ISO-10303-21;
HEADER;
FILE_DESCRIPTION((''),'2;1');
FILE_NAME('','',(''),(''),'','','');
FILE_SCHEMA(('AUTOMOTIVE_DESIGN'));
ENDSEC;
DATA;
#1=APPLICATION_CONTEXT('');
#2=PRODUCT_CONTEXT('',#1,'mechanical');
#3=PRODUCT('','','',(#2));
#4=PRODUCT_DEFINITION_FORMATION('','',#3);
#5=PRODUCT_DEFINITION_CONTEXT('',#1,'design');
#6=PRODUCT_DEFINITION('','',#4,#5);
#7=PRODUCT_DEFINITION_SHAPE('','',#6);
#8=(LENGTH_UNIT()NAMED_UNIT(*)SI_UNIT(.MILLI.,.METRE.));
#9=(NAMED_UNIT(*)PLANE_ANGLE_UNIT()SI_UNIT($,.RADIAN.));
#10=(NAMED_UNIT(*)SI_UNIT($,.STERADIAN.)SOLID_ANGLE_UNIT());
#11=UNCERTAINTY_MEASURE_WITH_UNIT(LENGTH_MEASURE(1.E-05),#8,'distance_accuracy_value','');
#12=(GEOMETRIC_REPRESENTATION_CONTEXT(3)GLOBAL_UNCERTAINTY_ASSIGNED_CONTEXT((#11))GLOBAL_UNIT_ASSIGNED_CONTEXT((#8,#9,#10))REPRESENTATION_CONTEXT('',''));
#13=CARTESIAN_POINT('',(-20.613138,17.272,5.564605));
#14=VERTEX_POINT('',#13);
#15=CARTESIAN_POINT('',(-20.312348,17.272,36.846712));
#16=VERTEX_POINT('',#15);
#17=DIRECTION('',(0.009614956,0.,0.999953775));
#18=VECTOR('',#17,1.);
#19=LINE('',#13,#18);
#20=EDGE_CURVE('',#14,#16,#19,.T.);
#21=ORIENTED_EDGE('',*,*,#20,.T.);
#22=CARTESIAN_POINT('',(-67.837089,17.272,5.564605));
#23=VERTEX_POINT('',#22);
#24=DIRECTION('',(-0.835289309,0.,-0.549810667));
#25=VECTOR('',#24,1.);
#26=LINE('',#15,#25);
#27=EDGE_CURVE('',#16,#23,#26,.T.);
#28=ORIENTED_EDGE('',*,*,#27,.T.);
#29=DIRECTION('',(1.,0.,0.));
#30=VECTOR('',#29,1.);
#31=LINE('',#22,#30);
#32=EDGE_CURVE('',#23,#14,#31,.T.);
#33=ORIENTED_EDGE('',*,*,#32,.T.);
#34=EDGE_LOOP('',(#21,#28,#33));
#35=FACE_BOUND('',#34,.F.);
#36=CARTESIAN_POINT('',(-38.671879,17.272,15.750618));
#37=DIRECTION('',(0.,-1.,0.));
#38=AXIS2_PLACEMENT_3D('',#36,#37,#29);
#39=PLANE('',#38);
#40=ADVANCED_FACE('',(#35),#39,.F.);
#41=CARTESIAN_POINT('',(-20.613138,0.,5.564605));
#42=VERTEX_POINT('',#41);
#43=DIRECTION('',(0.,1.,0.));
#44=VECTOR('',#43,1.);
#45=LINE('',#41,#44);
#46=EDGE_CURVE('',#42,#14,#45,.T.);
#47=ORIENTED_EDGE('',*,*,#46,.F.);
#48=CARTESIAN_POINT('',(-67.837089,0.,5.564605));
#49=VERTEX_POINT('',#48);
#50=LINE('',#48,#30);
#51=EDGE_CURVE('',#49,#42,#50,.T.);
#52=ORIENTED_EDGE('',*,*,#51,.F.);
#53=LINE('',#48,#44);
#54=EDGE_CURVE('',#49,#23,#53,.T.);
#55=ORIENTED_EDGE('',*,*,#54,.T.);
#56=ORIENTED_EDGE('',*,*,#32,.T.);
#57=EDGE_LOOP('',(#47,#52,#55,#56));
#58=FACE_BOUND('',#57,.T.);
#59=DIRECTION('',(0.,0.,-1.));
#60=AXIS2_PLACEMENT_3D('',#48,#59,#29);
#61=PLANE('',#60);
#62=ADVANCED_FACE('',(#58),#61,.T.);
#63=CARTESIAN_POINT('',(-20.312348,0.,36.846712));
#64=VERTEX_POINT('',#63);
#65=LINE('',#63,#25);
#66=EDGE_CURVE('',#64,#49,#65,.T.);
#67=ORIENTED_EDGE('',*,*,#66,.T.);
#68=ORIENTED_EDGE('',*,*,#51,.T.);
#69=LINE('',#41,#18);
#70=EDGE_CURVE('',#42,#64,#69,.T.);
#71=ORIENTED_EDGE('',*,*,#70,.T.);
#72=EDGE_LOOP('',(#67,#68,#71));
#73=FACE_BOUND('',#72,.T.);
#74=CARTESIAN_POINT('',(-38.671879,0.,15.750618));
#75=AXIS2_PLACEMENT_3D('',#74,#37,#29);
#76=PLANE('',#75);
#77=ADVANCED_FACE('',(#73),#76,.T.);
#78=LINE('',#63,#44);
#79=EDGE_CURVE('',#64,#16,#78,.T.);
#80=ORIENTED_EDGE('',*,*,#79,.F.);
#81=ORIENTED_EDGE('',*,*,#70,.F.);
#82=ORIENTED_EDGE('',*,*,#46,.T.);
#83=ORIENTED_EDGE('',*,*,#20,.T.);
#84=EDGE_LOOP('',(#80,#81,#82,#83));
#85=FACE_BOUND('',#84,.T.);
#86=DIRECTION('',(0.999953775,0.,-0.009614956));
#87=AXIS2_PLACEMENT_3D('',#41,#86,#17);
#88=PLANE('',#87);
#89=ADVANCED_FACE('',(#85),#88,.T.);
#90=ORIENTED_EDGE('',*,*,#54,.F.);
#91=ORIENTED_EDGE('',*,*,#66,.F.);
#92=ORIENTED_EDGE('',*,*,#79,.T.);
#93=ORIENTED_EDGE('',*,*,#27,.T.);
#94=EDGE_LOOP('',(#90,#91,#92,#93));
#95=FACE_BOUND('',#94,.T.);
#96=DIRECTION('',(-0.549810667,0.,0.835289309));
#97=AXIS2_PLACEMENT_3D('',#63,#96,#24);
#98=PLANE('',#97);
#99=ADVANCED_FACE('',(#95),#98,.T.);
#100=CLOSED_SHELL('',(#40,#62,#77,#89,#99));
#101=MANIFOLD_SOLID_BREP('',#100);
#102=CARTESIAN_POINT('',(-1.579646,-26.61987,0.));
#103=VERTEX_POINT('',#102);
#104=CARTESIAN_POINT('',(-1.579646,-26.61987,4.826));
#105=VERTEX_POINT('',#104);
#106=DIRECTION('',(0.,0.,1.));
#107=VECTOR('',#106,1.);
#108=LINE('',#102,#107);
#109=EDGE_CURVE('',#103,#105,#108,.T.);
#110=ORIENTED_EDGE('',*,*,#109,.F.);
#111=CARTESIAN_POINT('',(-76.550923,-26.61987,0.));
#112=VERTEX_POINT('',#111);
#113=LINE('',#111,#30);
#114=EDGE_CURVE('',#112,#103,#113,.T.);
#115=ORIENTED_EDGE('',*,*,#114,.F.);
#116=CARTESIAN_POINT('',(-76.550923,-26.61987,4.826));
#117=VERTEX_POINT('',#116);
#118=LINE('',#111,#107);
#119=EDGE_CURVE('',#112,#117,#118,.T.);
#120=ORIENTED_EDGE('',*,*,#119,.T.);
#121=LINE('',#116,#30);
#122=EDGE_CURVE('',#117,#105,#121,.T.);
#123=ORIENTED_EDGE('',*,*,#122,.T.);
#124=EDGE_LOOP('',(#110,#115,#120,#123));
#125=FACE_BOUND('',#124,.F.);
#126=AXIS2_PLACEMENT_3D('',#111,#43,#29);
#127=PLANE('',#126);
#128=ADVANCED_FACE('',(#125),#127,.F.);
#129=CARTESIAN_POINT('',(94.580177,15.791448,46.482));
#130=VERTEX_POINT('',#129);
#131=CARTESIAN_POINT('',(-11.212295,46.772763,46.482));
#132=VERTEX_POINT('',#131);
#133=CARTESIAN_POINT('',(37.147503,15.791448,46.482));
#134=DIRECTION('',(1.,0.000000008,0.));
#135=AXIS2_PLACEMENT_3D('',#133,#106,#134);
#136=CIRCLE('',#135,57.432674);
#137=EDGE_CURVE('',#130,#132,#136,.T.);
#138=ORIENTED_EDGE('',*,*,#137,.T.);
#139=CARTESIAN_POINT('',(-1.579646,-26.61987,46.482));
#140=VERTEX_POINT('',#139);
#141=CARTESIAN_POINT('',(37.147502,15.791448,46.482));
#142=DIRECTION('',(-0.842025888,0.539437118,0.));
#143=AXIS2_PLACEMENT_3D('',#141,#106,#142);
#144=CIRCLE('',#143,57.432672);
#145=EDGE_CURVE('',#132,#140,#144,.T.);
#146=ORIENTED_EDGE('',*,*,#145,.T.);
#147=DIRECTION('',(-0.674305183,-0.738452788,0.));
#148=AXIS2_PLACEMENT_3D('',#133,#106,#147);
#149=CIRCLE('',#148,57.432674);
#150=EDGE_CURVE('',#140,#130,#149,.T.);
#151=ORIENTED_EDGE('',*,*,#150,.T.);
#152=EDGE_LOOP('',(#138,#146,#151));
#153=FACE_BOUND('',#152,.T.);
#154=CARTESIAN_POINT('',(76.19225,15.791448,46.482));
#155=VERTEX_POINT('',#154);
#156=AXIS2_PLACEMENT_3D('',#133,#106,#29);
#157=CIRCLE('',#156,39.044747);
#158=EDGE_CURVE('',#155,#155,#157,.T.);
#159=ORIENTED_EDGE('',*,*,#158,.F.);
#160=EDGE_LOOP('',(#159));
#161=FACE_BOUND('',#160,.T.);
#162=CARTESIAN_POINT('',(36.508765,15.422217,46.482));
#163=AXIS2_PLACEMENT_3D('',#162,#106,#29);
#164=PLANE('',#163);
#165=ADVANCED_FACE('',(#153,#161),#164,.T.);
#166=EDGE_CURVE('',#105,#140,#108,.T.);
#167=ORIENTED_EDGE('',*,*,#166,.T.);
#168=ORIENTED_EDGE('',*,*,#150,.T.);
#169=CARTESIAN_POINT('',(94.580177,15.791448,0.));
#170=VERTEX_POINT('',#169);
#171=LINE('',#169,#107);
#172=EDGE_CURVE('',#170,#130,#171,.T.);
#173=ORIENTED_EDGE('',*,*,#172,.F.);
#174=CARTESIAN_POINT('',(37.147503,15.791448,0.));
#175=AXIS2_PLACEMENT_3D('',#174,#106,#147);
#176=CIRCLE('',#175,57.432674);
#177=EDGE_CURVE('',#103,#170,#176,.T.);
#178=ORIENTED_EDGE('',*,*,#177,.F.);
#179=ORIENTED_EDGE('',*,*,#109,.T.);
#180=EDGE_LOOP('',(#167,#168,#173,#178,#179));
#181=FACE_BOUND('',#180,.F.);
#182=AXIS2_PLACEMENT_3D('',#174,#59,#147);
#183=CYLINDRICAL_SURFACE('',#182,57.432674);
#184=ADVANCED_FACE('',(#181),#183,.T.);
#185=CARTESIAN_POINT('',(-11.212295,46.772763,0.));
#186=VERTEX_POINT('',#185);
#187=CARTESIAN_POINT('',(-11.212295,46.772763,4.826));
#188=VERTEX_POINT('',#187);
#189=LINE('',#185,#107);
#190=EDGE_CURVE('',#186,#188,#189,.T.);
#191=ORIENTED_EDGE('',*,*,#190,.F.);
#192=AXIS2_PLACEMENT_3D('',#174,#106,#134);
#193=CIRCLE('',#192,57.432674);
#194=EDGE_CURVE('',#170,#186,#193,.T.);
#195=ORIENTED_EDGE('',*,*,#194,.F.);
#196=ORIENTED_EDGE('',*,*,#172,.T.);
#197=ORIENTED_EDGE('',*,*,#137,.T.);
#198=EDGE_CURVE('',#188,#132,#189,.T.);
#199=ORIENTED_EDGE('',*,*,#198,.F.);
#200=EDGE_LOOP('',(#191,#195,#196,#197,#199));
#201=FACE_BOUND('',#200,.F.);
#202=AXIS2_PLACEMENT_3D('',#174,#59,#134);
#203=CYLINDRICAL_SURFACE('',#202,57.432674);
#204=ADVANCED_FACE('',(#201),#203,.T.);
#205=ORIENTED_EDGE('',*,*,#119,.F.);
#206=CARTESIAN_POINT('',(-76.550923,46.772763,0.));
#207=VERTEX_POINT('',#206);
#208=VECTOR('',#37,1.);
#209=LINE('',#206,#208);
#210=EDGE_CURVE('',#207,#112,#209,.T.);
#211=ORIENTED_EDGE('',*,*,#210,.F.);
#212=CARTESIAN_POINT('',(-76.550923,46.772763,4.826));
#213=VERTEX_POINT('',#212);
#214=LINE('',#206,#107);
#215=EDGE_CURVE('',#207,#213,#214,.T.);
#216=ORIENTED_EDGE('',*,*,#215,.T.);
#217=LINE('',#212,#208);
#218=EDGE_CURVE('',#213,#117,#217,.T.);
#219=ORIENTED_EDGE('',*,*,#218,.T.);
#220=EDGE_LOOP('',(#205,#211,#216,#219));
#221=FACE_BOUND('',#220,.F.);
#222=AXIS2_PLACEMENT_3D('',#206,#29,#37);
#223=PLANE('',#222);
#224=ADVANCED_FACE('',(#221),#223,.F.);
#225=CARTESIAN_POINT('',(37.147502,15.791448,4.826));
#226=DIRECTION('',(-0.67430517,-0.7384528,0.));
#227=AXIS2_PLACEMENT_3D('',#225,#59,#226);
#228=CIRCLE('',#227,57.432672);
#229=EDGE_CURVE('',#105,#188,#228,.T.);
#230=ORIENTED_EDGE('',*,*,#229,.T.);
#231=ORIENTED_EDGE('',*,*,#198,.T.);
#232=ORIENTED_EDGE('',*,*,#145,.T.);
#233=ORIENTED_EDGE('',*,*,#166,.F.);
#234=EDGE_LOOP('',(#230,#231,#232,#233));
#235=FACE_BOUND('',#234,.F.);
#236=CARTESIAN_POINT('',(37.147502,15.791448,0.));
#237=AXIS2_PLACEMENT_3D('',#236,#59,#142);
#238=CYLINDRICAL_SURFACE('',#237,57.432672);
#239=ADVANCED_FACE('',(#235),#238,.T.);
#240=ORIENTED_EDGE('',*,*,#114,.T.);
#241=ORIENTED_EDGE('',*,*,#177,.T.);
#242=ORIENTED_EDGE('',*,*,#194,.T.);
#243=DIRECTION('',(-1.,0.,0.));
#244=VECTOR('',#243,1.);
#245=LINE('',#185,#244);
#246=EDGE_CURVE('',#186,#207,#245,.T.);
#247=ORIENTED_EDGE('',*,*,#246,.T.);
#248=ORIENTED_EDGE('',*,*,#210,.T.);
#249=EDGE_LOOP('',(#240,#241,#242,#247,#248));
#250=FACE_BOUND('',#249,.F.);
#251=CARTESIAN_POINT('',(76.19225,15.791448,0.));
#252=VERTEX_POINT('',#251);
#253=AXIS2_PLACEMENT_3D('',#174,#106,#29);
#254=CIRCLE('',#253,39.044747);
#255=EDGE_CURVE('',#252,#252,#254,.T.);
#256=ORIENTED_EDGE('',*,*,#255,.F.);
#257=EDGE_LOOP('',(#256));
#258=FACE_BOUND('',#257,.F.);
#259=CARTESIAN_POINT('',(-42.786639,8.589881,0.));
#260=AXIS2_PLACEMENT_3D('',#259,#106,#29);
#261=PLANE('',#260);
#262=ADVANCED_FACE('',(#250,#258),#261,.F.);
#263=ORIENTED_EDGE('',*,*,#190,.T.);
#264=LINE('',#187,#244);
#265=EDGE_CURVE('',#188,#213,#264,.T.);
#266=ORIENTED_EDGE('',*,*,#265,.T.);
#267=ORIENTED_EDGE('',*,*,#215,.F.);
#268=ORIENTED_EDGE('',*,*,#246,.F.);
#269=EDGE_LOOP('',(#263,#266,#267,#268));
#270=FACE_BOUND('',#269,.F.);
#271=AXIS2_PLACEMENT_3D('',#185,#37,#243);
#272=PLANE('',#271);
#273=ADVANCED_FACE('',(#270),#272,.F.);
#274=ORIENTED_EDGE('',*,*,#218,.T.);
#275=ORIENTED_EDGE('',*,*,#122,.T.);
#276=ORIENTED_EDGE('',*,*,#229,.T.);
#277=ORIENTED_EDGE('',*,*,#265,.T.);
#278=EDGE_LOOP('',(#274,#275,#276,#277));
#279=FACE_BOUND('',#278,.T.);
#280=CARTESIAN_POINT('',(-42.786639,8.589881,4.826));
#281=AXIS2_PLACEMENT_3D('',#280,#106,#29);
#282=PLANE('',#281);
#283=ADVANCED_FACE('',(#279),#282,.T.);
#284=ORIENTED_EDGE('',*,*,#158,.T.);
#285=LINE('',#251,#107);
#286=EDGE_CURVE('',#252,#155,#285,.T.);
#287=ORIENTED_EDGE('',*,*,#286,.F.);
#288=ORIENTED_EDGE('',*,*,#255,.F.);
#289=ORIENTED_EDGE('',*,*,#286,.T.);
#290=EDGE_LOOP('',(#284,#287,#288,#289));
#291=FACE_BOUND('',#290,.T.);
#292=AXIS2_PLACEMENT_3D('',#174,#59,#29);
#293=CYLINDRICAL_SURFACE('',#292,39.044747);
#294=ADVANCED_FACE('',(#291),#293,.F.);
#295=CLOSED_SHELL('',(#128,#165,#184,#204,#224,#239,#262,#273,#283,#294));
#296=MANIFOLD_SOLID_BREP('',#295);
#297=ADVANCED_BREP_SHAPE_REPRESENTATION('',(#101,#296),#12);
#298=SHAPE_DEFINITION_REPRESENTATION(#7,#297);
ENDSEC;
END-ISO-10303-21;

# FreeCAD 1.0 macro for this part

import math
import FreeCAD as App
import Part
import Sketcher
from FreeCAD import Vector
Q = App.Units.Quantity

doc = App.newDocument("Part")
body = doc.addObject("PartDesign::Body", "Body")

sketch1 = doc.addObject("Sketcher::SketchObject", "Sketch")
body.addObject(sketch1)
sketch1.AttachmentSupport = (doc.XY_Plane, [""])
sketch1.MapMode = "FlatFace"
sketch1.addGeometry([
    Part.ArcOfCircle(Part.Circle(Vector(37, 16, 0), Vector(0, 0, 1), 57), math.radians(0), math.radians(147)),
    Part.ArcOfCircle(Part.Circle(Vector(37, 16, 0), Vector(0, 0, 1), 57), math.radians(147), math.radians(228)),
    Part.ArcOfCircle(Part.Circle(Vector(37, 16, 0), Vector(0, 0, 1), 57), math.radians(-132), math.radians(0)),
    Part.Circle(Vector(37, 16, 0), Vector(0, 0, 1), 39),
], False)
sketch1.addConstraint([
    Sketcher.Constraint("Tangent", 0, 2, 1, 1),
    Sketcher.Constraint("Tangent", 1, 2, 2, 1),
    Sketcher.Constraint("Tangent", 2, 2, 0, 1),
    Sketcher.Constraint("Coincident", 3, 3, 0, 3),
    Sketcher.Constraint("Horizontal", 3, 3, 2, 2),
    Sketcher.Constraint("Diameter", 3, Q("78.089494 mm")),
    Sketcher.Constraint("DistanceX", -1, 1, 0, 3, Q("1.4625001 in")),
    Sketcher.Constraint("Radius", 0, Q("57.432674 mm")),
    Sketcher.Constraint("DistanceX", 0, 2, 2, 3, Q("48.359798 mm")),
    Sketcher.Constraint("DistanceY", -1, 1, 3, 3, Q("15.791448 mm")),
    Sketcher.Constraint("DistanceY", 1, 2, -1, 1, Q("26.61987 mm")),
])
pad1 = doc.addObject("PartDesign::Pad", "Pad")
body.addObject(pad1)
pad1.Profile = sketch1
pad1.Length = Q("1.83 in")

sketch2 = doc.addObject("Sketcher::SketchObject", "Sketch001")
body.addObject(sketch2)
sketch2.AttachmentSupport = (doc.XY_Plane, [""])
sketch2.MapMode = "FlatFace"
sketch2.addGeometry([
    Part.LineSegment(Vector(-11, 47, 0), Vector(-77, 47, 0)),
    Part.LineSegment(Vector(-77, 47, 0), Vector(-77, -27, 0)),
    Part.LineSegment(Vector(-77, -27, 0), Vector(-2, -27, 0)),
    Part.ArcOfCircle(Part.Circle(Vector(37, 16, 0), Vector(0, 0, 1), 57), math.radians(147), math.radians(228)),
], False)
sketch2.addConstraint([
    Sketcher.Constraint("Coincident", 0, 2, 1, 1),
    Sketcher.Constraint("Coincident", 1, 2, 2, 1),
    Sketcher.Constraint("Coincident", 2, 2, 3, 2),
    Sketcher.Constraint("Coincident", 3, 1, 0, 1),
    Sketcher.Constraint("Horizontal", 0),
    Sketcher.Constraint("Vertical", 1),
    Sketcher.Constraint("Horizontal", 2),
    Sketcher.Constraint("DistanceX", -1, 1, 3, 3, Q("1.4625001 in")),
    Sketcher.Constraint("Radius", 3, Q("57.432672 mm")),
    Sketcher.Constraint("DistanceX", 0, 2, 0, 1, Q("65.338628 mm")),
    Sketcher.Constraint("DistanceX", 2, 1, 2, 2, Q("74.971277 mm")),
    Sketcher.Constraint("DistanceY", 1, 2, 1, 1, Q("73.392633 mm")),
    Sketcher.Constraint("DistanceY", 1, 2, -1, 1, Q("26.61987 mm")),
])
pad2 = doc.addObject("PartDesign::Pad", "Pad001")
body.addObject(pad2)
pad2.Profile = sketch2
pad2.Length = Q("0.19 in")
body2 = doc.addObject("PartDesign::Body", "Body001")

sketch3 = doc.addObject("Sketcher::SketchObject", "Sketch002")
body2.addObject(sketch3)
sketch3.AttachmentSupport = (doc.getObject("XZ_Plane001"), [""])
sketch3.MapMode = "FlatFace"
sketch3.addGeometry([
    Part.LineSegment(Vector(-21, 6, 0), Vector(-20, 37, 0)),
    Part.LineSegment(Vector(-20, 37, 0), Vector(-68, 6, 0)),
    Part.LineSegment(Vector(-68, 6, 0), Vector(-21, 6, 0)),
], False)
sketch3.addConstraint([
    Sketcher.Constraint("Coincident", 0, 2, 1, 1),
    Sketcher.Constraint("Coincident", 1, 2, 2, 1),
    Sketcher.Constraint("Coincident", 2, 2, 0, 1),
    Sketcher.Constraint("Horizontal", 2),
    Sketcher.Constraint("DistanceX", 2, 1, 2, 2, Q("47.223951 mm")),
    Sketcher.Constraint("DistanceX", 0, 2, -1, 1, Q("20.312348 mm")),
    Sketcher.Constraint("DistanceY", -1, 1, 0, 2, Q("36.846712 mm")),
    Sketcher.Constraint("DistanceX", 1, 2, -1, 1, Q("67.837089 mm")),
    Sketcher.Constraint("Distance", 0, Q("31.283553 mm")),
])
pad3 = doc.addObject("PartDesign::Pad", "Pad002")
body2.addObject(pad3)
pad3.Profile = sketch3
pad3.Length = Q("0.68 in")
pad3.Reversed = True

doc.recompute()
